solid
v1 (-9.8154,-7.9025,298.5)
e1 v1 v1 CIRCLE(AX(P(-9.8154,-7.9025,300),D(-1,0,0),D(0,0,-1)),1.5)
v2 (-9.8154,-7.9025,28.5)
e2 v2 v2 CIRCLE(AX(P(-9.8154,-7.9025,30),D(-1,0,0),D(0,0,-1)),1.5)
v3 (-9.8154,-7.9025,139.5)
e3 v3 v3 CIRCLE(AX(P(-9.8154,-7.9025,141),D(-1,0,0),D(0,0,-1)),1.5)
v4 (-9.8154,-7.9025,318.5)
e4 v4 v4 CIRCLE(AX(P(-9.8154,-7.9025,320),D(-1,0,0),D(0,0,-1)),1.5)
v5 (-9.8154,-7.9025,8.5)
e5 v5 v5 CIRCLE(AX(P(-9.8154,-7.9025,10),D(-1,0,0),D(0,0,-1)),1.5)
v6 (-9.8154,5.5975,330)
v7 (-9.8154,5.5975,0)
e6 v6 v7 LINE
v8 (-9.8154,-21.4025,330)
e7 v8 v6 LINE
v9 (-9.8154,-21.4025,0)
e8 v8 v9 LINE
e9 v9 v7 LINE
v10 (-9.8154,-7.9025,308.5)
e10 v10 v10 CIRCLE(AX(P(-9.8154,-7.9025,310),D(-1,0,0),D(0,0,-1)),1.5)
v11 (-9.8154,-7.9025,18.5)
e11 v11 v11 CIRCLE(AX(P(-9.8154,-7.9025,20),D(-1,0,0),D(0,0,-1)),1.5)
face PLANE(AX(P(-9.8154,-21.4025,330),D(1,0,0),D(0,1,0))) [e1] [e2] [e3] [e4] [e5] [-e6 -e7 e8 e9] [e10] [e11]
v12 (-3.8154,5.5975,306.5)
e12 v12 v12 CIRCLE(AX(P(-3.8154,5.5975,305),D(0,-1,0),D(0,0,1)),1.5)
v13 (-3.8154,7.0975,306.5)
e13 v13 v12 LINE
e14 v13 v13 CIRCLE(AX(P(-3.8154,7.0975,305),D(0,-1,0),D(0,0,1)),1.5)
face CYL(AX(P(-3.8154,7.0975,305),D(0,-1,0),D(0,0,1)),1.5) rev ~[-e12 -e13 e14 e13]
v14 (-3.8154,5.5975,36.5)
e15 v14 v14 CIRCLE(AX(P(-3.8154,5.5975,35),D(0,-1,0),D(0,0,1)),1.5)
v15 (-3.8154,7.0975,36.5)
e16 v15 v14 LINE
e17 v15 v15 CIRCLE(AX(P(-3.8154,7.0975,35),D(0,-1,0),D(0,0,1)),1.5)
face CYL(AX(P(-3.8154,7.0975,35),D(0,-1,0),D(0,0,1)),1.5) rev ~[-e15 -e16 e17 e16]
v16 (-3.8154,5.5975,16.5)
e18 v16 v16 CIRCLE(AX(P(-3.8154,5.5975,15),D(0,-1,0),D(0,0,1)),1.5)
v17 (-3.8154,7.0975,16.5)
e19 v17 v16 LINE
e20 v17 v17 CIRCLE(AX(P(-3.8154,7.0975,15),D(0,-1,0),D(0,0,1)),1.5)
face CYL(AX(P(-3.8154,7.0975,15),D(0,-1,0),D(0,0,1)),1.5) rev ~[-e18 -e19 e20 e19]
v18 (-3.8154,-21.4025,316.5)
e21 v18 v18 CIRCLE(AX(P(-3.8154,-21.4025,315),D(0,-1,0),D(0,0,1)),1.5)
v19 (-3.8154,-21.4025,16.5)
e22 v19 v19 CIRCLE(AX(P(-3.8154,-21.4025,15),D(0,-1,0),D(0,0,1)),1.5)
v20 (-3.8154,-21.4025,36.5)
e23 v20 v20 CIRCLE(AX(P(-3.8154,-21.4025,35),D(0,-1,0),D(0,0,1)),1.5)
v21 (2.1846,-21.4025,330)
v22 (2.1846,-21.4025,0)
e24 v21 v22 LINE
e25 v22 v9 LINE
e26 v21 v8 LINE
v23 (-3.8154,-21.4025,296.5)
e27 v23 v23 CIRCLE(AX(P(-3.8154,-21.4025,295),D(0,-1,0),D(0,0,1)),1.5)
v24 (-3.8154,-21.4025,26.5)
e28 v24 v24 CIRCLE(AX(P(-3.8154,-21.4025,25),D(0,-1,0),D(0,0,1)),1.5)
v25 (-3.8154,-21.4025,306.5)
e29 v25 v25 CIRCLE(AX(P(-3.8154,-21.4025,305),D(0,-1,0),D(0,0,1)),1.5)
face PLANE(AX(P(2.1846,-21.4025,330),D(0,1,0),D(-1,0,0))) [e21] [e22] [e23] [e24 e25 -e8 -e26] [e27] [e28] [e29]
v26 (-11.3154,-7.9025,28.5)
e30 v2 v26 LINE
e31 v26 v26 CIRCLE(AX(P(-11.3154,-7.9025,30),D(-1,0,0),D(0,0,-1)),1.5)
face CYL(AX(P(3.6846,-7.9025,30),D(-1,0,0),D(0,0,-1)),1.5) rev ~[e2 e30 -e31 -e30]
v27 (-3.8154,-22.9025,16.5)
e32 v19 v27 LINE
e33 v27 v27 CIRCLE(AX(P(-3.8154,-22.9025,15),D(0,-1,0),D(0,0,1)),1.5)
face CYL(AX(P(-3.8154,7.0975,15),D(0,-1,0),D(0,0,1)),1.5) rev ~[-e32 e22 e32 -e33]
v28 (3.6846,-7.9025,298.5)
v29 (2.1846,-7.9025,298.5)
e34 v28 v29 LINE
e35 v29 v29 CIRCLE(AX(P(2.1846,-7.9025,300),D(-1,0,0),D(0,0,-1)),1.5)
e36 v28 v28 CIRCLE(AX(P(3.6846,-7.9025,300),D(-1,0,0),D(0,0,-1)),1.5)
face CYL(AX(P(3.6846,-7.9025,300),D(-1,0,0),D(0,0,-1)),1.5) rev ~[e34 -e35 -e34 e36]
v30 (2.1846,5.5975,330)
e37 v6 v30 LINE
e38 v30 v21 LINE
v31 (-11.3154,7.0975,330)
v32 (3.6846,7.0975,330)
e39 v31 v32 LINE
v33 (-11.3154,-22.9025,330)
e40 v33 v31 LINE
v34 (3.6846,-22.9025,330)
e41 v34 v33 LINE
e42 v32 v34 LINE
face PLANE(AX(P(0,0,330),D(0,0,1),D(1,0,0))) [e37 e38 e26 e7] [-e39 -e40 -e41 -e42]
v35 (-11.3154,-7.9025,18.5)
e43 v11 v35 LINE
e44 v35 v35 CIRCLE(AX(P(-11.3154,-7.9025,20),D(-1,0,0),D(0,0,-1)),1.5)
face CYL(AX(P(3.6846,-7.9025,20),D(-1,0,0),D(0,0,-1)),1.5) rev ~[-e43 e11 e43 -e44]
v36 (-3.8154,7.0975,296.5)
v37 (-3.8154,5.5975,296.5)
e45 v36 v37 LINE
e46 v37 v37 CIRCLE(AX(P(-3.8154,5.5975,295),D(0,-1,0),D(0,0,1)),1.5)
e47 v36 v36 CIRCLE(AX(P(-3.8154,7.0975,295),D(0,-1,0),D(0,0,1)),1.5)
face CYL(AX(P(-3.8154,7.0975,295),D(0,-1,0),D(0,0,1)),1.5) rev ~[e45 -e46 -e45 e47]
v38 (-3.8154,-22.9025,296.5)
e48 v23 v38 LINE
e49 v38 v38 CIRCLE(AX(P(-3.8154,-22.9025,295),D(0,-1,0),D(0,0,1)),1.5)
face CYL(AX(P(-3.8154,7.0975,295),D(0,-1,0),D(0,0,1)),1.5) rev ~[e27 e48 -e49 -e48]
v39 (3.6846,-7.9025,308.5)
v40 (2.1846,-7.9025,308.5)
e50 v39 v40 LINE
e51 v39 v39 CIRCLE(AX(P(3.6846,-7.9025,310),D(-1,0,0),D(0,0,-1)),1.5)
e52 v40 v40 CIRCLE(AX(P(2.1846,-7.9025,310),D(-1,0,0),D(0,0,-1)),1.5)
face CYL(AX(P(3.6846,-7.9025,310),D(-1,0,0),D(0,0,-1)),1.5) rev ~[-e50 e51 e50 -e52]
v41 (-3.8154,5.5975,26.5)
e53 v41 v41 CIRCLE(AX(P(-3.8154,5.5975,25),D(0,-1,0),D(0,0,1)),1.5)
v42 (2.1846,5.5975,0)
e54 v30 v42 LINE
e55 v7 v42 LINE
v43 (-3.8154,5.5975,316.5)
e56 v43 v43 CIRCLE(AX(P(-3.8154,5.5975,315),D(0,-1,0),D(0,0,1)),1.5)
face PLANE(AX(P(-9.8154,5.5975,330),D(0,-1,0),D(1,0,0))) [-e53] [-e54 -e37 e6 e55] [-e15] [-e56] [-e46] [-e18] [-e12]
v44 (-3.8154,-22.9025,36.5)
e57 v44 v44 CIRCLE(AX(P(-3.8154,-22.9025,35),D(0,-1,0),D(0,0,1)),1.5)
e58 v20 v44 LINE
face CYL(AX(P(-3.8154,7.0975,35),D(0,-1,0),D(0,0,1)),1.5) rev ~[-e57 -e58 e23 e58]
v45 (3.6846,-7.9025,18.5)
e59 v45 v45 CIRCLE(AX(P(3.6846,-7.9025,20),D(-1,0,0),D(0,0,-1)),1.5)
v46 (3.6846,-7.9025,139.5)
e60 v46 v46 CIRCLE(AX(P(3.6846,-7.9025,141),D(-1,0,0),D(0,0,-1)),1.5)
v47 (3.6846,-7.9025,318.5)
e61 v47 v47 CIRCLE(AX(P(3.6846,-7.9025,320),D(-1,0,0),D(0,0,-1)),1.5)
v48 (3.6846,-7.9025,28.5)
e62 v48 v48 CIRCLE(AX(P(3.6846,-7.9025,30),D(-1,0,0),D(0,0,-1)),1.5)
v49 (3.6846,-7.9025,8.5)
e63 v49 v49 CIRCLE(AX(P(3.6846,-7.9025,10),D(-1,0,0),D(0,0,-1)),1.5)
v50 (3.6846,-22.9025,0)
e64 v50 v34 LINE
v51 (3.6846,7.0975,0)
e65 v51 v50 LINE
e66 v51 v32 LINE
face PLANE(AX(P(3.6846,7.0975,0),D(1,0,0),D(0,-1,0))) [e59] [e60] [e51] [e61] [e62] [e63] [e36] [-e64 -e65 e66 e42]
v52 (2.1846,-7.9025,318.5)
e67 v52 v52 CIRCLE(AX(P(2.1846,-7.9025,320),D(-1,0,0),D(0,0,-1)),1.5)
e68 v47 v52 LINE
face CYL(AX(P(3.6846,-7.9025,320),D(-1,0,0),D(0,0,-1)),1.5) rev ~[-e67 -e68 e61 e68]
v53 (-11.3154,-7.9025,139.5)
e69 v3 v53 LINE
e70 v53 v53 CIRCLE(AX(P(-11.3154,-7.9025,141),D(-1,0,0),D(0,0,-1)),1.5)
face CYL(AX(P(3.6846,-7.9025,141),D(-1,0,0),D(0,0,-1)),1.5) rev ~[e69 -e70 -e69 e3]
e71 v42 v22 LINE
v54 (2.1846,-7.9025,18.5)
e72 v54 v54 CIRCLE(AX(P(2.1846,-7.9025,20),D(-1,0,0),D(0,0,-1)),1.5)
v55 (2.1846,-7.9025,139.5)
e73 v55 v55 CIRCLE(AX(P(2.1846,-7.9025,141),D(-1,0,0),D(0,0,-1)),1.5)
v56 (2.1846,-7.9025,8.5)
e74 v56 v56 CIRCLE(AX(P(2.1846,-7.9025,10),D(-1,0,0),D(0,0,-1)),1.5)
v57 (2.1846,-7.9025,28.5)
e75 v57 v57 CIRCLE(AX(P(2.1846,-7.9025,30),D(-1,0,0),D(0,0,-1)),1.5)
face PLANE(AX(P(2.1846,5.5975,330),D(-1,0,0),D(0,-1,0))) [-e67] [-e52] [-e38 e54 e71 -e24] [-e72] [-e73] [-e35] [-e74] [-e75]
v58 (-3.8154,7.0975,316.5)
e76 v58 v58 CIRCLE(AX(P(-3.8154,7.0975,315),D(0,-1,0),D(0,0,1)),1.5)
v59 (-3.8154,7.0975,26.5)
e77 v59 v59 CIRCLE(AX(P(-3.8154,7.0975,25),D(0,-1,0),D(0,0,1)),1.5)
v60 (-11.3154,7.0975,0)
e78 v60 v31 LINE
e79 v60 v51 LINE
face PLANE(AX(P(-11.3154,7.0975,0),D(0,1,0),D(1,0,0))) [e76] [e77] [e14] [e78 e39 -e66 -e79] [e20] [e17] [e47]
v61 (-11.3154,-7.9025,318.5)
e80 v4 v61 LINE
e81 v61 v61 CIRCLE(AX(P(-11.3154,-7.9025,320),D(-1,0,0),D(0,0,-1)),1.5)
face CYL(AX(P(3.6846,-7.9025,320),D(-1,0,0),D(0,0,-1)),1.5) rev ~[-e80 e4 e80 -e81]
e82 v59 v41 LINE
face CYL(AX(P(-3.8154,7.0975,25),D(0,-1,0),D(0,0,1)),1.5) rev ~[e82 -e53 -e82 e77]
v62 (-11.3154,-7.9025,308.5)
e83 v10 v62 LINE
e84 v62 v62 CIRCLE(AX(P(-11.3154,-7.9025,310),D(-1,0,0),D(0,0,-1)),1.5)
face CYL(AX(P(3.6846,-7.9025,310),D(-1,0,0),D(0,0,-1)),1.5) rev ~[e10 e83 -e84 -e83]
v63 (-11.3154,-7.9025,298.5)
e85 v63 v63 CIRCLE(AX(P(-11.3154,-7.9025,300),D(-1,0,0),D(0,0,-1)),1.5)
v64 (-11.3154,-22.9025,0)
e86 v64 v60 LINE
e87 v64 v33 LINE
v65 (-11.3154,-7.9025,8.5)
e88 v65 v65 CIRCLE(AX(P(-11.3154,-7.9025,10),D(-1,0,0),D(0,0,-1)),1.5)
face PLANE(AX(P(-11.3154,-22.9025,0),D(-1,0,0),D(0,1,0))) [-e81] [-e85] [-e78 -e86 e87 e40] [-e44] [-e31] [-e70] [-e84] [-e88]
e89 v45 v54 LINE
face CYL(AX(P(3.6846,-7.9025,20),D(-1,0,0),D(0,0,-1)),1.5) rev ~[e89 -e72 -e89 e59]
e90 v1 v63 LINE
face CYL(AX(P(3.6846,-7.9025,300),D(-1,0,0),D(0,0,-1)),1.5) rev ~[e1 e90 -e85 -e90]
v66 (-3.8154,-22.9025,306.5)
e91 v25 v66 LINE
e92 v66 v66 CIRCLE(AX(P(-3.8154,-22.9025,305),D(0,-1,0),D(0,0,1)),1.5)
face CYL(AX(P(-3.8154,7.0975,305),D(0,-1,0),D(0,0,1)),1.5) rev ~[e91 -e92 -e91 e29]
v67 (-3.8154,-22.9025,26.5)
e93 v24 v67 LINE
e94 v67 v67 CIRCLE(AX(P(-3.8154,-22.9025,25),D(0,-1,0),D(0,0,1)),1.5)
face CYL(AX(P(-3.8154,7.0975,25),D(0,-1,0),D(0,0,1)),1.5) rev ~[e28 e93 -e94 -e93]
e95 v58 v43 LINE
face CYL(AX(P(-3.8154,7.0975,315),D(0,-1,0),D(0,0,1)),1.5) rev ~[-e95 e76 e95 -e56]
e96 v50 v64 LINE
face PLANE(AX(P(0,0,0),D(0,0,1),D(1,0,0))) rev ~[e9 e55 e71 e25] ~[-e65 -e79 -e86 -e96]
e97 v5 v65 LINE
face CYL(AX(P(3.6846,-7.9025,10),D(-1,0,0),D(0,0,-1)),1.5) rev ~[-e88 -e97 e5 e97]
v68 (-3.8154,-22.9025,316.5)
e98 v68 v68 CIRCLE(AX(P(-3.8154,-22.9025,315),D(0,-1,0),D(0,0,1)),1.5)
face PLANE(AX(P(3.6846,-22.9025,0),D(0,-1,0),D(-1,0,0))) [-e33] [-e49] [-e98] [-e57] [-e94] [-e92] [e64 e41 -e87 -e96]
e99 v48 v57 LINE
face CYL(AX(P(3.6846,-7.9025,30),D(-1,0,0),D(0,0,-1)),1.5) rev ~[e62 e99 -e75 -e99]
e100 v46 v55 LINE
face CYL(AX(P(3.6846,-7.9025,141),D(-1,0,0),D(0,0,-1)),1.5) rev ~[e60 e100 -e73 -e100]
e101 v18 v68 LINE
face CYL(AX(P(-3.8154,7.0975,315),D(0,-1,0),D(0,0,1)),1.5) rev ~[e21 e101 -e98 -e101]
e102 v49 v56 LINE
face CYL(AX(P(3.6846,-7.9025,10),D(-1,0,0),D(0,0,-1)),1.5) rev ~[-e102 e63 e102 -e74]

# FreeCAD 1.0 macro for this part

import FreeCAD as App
import Part
import Sketcher
from FreeCAD import Vector


def add_polygon(sketch, points):
    """Adds a closed chain of lines whose ends are joined by coincident constraints."""
    first, n = sketch.GeometryCount, len(points)
    for a, b in zip(points, points[1:] + points[:1]):
        sketch.addGeometry(Part.LineSegment(App.Vector(*a, 0), App.Vector(*b, 0)), False)
    for i in range(n):
        sketch.addConstraint(Sketcher.Constraint("Coincident", first + i, 2, first + (i + 1) % n, 1))

doc = App.newDocument("Part")
params = doc.addObject("Spreadsheet::Sheet", "Params")
for row, (alias, value) in enumerate([
    ("sketch1_width", "15 mm"),
    ("sketch1_height", "30 mm"),
    ("pad1_length", "330 mm"),
    ("sketch2_diameter", "3 mm"),
    ("hole_diameter", "3 mm"),
    ("hole_depth", "15 mm"),
    ("sketch3_diameter", "3 mm"),
    ("hole2_diameter", "3 mm"),
    ("hole2_depth", "30 mm"),
    ("sketch4_width", "12 mm"),
    ("sketch4_height", "27 mm"),
    ("pocket1_length", "330 mm"),
    ("sketch5_diameter", "3 mm"),
    ("hole3_diameter", "3 mm"),
    ("hole3_depth", "15 mm"),
], start=1):
    params.set(f"A{row}", alias)
    params.set(f"B{row}", "=" + value)
    params.setAlias(f"B{row}", alias)

body = doc.addObject("PartDesign::Body", "Body")

sketch1 = body.newObject("Sketcher::SketchObject", "Sketch")
sketch1.AttachmentSupport = (doc.getObject("XY_Plane"), [""])
sketch1.MapMode = "FlatFace"
add_polygon(sketch1, [(4, 7), (-11, 7), (-11, -23), (4, -23)])
sketch1.addConstraint([
    Sketcher.Constraint("Horizontal", 0),
    Sketcher.Constraint("Vertical", 1),
    Sketcher.Constraint("Horizontal", 2),
    Sketcher.Constraint("Vertical", 3),
    Sketcher.Constraint("DistanceX", 0, 2, 0, 1, 15.0),
    Sketcher.Constraint("DistanceY", 1, 2, 1, 1, 30.0),
    Sketcher.Constraint("DistanceX", 0, 2, -1, 1, 11.3154),
    Sketcher.Constraint("DistanceY", -1, 1, 0, 2, 7.0975),
])
sketch1.setExpression("Constraints[8]", "Params.sketch1_width")
sketch1.setExpression("Constraints[9]", "Params.sketch1_height")
pad1 = body.newObject("PartDesign::Pad", "Pad")
pad1.Profile = sketch1
pad1.setExpression("Length", "Params.pad1_length")

sketch2 = body.newObject("Sketcher::SketchObject", "Sketch001")
sketch2.AttachmentSupport = (doc.getObject("YZ_Plane"), [""])
sketch2.MapMode = "FlatFace"
sketch2.AttachmentOffset = App.Placement(Vector(0, 0, 3.6846), App.Rotation())
sketch2.addGeometry([
    Part.Circle(Vector(-7.9, 320, 0), Vector(0, 0, 1), 1.5),
    Part.Circle(Vector(-7.9, 310, 0), Vector(0, 0, 1), 1.5),
    Part.Circle(Vector(-7.9, 300, 0), Vector(0, 0, 1), 1.5),
    Part.Circle(Vector(-7.9, 10, 0), Vector(0, 0, 1), 1.5),
    Part.Circle(Vector(-7.9, 20, 0), Vector(0, 0, 1), 1.5),
    Part.Circle(Vector(-7.9, 30, 0), Vector(0, 0, 1), 1.5),
], False)
sketch2.addConstraint([
    Sketcher.Constraint("Equal", 0, 1),
    Sketcher.Constraint("Equal", 1, 2),
    Sketcher.Constraint("Equal", 2, 3),
    Sketcher.Constraint("Equal", 3, 4),
    Sketcher.Constraint("Equal", 4, 5),
    Sketcher.Constraint("Vertical", 0, 3, 1, 3),
    Sketcher.Constraint("Vertical", 1, 3, 2, 3),
    Sketcher.Constraint("Vertical", 2, 3, 3, 3),
    Sketcher.Constraint("Vertical", 3, 3, 4, 3),
    Sketcher.Constraint("Vertical", 4, 3, 5, 3),
    Sketcher.Constraint("Diameter", 0, 3.0),
    Sketcher.Constraint("DistanceY", -1, 1, 0, 3, 320.0),
    Sketcher.Constraint("DistanceY", -1, 1, 1, 3, 310.0),
    Sketcher.Constraint("DistanceY", -1, 1, 2, 3, 300.0),
    Sketcher.Constraint("DistanceY", -1, 1, 3, 3, 10.0),
    Sketcher.Constraint("DistanceY", -1, 1, 4, 3, 20.0),
    Sketcher.Constraint("DistanceY", -1, 1, 5, 3, 30.0),
    Sketcher.Constraint("DistanceX", 0, 3, -1, 1, 7.9025),
])
sketch2.setExpression("Constraints[10]", "Params.sketch2_diameter")
doc.recompute()
hole = body.newObject("PartDesign::Hole", "Hole")
hole.Profile = sketch2
hole.ThreadType = "None"
hole.setExpression("Diameter", "Params.hole_diameter")
hole.DepthType = "Dimension"
hole.setExpression("Depth", "Params.hole_depth")
hole.DrillPoint = "Flat"

sketch3 = body.newObject("Sketcher::SketchObject", "Sketch002")
sketch3.AttachmentSupport = (doc.getObject("XZ_Plane"), [""])
sketch3.MapMode = "FlatFace"
sketch3.AttachmentOffset = App.Placement(Vector(0, 0, -7.0975), App.Rotation())
sketch3.addGeometry([
    Part.Circle(Vector(-3.8, 295, 0), Vector(0, 0, 1), 1.5),
    Part.Circle(Vector(-3.8, 305, 0), Vector(0, 0, 1), 1.5),
    Part.Circle(Vector(-3.8, 315, 0), Vector(0, 0, 1), 1.5),
    Part.Circle(Vector(-3.8, 15, 0), Vector(0, 0, 1), 1.5),
    Part.Circle(Vector(-3.8, 25, 0), Vector(0, 0, 1), 1.5),
    Part.Circle(Vector(-3.8, 35, 0), Vector(0, 0, 1), 1.5),
], False)
sketch3.addConstraint([
    Sketcher.Constraint("Equal", 0, 1),
    Sketcher.Constraint("Equal", 1, 2),
    Sketcher.Constraint("Equal", 2, 3),
    Sketcher.Constraint("Equal", 3, 4),
    Sketcher.Constraint("Equal", 4, 5),
    Sketcher.Constraint("Vertical", 0, 3, 1, 3),
    Sketcher.Constraint("Vertical", 1, 3, 2, 3),
    Sketcher.Constraint("Vertical", 2, 3, 3, 3),
    Sketcher.Constraint("Vertical", 3, 3, 4, 3),
    Sketcher.Constraint("Vertical", 4, 3, 5, 3),
    Sketcher.Constraint("Diameter", 0, 3.0),
    Sketcher.Constraint("DistanceY", -1, 1, 0, 3, 295.0),
    Sketcher.Constraint("DistanceY", -1, 1, 1, 3, 305.0),
    Sketcher.Constraint("DistanceY", -1, 1, 2, 3, 315.0),
    Sketcher.Constraint("DistanceY", -1, 1, 3, 3, 15.0),
    Sketcher.Constraint("DistanceY", -1, 1, 4, 3, 25.0),
    Sketcher.Constraint("DistanceY", -1, 1, 5, 3, 35.0),
    Sketcher.Constraint("DistanceX", 0, 3, -1, 1, 3.8154),
])
sketch3.setExpression("Constraints[10]", "Params.sketch3_diameter")
doc.recompute()
hole2 = body.newObject("PartDesign::Hole", "Hole001")
hole2.Profile = sketch3
hole2.ThreadType = "None"
hole2.setExpression("Diameter", "Params.hole2_diameter")
hole2.DepthType = "Dimension"
hole2.setExpression("Depth", "Params.hole2_depth")
hole2.DrillPoint = "Flat"
hole2.Reversed = True

sketch4 = body.newObject("Sketcher::SketchObject", "Sketch003")
sketch4.AttachmentSupport = (doc.getObject("XY_Plane"), [""])
sketch4.MapMode = "FlatFace"
sketch4.AttachmentOffset = App.Placement(Vector(0, 0, 330), App.Rotation())
add_polygon(sketch4, [(2, 6), (-10, 6), (-10, -21), (2, -21)])
sketch4.addConstraint([
    Sketcher.Constraint("Horizontal", 0),
    Sketcher.Constraint("Vertical", 1),
    Sketcher.Constraint("Horizontal", 2),
    Sketcher.Constraint("Vertical", 3),
    Sketcher.Constraint("DistanceX", 0, 2, 0, 1, 12.0),
    Sketcher.Constraint("DistanceY", 1, 2, 1, 1, 27.0),
    Sketcher.Constraint("DistanceX", 0, 2, -1, 1, 9.8154),
    Sketcher.Constraint("DistanceY", -1, 1, 0, 2, 5.5975),
])
sketch4.setExpression("Constraints[8]", "Params.sketch4_width")
sketch4.setExpression("Constraints[9]", "Params.sketch4_height")
pocket1 = body.newObject("PartDesign::Pocket", "Pocket")
pocket1.Profile = sketch4
pocket1.setExpression("Length", "Params.pocket1_length")

sketch5 = body.newObject("Sketcher::SketchObject", "Sketch004")
sketch5.AttachmentSupport = (doc.getObject("YZ_Plane"), [""])
sketch5.MapMode = "FlatFace"
sketch5.AttachmentOffset = App.Placement(Vector(0, 0, 3.6846), App.Rotation())
sketch5.addGeometry(Part.Circle(Vector(-7.9, 141, 0), Vector(0, 0, 1), 1.5), False)
sketch5.addConstraint([
    Sketcher.Constraint("Diameter", 0, 3.0),
    Sketcher.Constraint("DistanceY", -1, 1, 0, 3, 141.0),
    Sketcher.Constraint("DistanceX", 0, 3, -1, 1, 7.9025),
])
sketch5.setExpression("Constraints[0]", "Params.sketch5_diameter")
doc.recompute()
hole3 = body.newObject("PartDesign::Hole", "Hole002")
hole3.Profile = sketch5
hole3.ThreadType = "None"
hole3.setExpression("Diameter", "Params.hole3_diameter")
hole3.DepthType = "Dimension"
hole3.setExpression("Depth", "Params.hole3_depth")
hole3.DrillPoint = "Flat"

doc.recompute()
